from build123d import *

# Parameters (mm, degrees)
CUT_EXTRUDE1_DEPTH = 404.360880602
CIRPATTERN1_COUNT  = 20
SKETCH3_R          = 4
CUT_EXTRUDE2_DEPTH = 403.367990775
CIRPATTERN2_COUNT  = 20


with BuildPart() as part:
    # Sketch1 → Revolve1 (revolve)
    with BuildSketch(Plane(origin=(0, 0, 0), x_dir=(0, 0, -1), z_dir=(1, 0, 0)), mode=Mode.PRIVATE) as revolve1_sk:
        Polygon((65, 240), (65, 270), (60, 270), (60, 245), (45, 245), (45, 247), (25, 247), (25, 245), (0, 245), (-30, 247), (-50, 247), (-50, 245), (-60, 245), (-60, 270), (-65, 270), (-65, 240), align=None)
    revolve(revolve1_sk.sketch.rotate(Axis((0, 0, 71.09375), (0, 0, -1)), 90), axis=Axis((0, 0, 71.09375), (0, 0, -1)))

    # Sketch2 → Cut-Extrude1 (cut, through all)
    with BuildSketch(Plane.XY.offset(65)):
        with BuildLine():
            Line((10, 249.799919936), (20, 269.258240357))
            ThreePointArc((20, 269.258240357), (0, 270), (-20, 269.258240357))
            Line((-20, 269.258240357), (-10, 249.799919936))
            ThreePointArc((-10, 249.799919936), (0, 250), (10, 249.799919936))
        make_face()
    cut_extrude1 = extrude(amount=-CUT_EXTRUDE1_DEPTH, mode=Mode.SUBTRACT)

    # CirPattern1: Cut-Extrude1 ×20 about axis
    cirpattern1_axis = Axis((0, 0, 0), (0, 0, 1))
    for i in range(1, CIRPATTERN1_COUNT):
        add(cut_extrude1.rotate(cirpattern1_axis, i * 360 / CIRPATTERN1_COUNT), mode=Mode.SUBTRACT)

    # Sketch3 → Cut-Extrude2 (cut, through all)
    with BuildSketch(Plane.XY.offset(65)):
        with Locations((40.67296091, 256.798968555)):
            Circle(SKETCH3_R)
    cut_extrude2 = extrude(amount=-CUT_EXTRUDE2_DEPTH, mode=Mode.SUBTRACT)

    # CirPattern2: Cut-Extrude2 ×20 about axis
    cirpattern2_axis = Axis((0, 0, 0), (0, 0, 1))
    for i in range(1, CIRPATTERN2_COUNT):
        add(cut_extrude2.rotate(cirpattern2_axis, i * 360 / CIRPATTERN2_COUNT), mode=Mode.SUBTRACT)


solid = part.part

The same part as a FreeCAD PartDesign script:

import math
import FreeCAD as App
import Part
import Sketcher
from FreeCAD import Vector

doc = App.newDocument("Part")
body = doc.addObject("PartDesign::Body", "Body")

sketch1 = body.newObject("Sketcher::SketchObject", "Sketch")
sketch1.AttachmentSupport = (doc.getObject("YZ_Plane"), [""])
sketch1.MapMode = "FlatFace"
sketch1.addGeometry(Part.LineSegment(Vector(240, -65, 0), Vector(270, -65, 0)), False)
sketch1.addGeometry(Part.LineSegment(Vector(270, -65, 0), Vector(270, -60, 0)), False)
sketch1.addGeometry(Part.LineSegment(Vector(270, -60, 0), Vector(245, -60, 0)), False)
sketch1.addGeometry(Part.LineSegment(Vector(245, -60, 0), Vector(245, -45, 0)), False)
sketch1.addGeometry(Part.LineSegment(Vector(245, -45, 0), Vector(247, -45, 0)), False)
sketch1.addGeometry(Part.LineSegment(Vector(247, -45, 0), Vector(247, -25, 0)), False)
sketch1.addGeometry(Part.LineSegment(Vector(247, -25, 0), Vector(245, -25, 0)), False)
sketch1.addGeometry(Part.LineSegment(Vector(245, -25, 0), Vector(245, 0, 0)), False)
sketch1.addGeometry(Part.LineSegment(Vector(245, 0, 0), Vector(247, 30, 0)), False)
sketch1.addGeometry(Part.LineSegment(Vector(247, 30, 0), Vector(247, 50, 0)), False)
sketch1.addGeometry(Part.LineSegment(Vector(247, 50, 0), Vector(245, 50, 0)), False)
sketch1.addGeometry(Part.LineSegment(Vector(245, 50, 0), Vector(245, 60, 0)), False)
sketch1.addGeometry(Part.LineSegment(Vector(245, 60, 0), Vector(270, 60, 0)), False)
sketch1.addGeometry(Part.LineSegment(Vector(270, 60, 0), Vector(270, 65, 0)), False)
sketch1.addGeometry(Part.LineSegment(Vector(270, 65, 0), Vector(240, 65, 0)), False)
sketch1.addGeometry(Part.LineSegment(Vector(240, 65, 0), Vector(240, -65, 0)), False)
sketch1.addConstraint(Sketcher.Constraint("Coincident", 0, 2, 1, 1))
sketch1.addConstraint(Sketcher.Constraint("Coincident", 1, 2, 2, 1))
sketch1.addConstraint(Sketcher.Constraint("Coincident", 2, 2, 3, 1))
sketch1.addConstraint(Sketcher.Constraint("Coincident", 3, 2, 4, 1))
sketch1.addConstraint(Sketcher.Constraint("Coincident", 4, 2, 5, 1))
sketch1.addConstraint(Sketcher.Constraint("Coincident", 5, 2, 6, 1))
sketch1.addConstraint(Sketcher.Constraint("Coincident", 6, 2, 7, 1))
sketch1.addConstraint(Sketcher.Constraint("Coincident", 7, 2, 8, 1))
sketch1.addConstraint(Sketcher.Constraint("Coincident", 8, 2, 9, 1))
sketch1.addConstraint(Sketcher.Constraint("Coincident", 9, 2, 10, 1))
sketch1.addConstraint(Sketcher.Constraint("Coincident", 10, 2, 11, 1))
sketch1.addConstraint(Sketcher.Constraint("Coincident", 11, 2, 12, 1))
sketch1.addConstraint(Sketcher.Constraint("Coincident", 12, 2, 13, 1))
sketch1.addConstraint(Sketcher.Constraint("Coincident", 13, 2, 14, 1))
sketch1.addConstraint(Sketcher.Constraint("Coincident", 14, 2, 15, 1))
sketch1.addConstraint(Sketcher.Constraint("Coincident", 15, 2, 0, 1))
sketch1.addConstraint(Sketcher.Constraint("Horizontal", 0))
sketch1.addConstraint(Sketcher.Constraint("Vertical", 1))
sketch1.addConstraint(Sketcher.Constraint("Horizontal", 2))
sketch1.addConstraint(Sketcher.Constraint("Vertical", 3))
sketch1.addConstraint(Sketcher.Constraint("Horizontal", 4))
sketch1.addConstraint(Sketcher.Constraint("Vertical", 5))
sketch1.addConstraint(Sketcher.Constraint("Horizontal", 6))
sketch1.addConstraint(Sketcher.Constraint("Vertical", 7))
sketch1.addConstraint(Sketcher.Constraint("Vertical", 9))
sketch1.addConstraint(Sketcher.Constraint("Horizontal", 10))
sketch1.addConstraint(Sketcher.Constraint("Vertical", 11))
sketch1.addConstraint(Sketcher.Constraint("Horizontal", 12))
sketch1.addConstraint(Sketcher.Constraint("Vertical", 13))
sketch1.addConstraint(Sketcher.Constraint("Horizontal", 14))
sketch1.addConstraint(Sketcher.Constraint("Vertical", 15))
sketch1.addConstraint(Sketcher.Constraint("Symmetric", 2, 2, 11, 2, -1))
sketch1.addConstraint(Sketcher.Constraint("Symmetric", 0, 2, 13, 2, -1))
sketch1.addConstraint(Sketcher.Constraint("PointOnObject", 7, 2, -1))
sketch1.addConstraint(Sketcher.Constraint("Vertical", 3, 2, 6, 2))
sketch1.addConstraint(Sketcher.Constraint("Vertical", 5, 2, 8, 2))
sketch1.addConstraint(Sketcher.Constraint("Equal", 12, 7))
sketch1.addConstraint(Sketcher.Constraint("Equal", 5, 9))
sketch1.addConstraint(Sketcher.Constraint("DistanceX", 0, 1, 0, 2, 30.0))
sketch1.addConstraint(Sketcher.Constraint("DistanceX", 2, 2, 2, 1, 25.0))
sketch1.addConstraint(Sketcher.Constraint("DistanceX", 4, 1, 4, 2, 2.0))
sketch1.addConstraint(Sketcher.Constraint("DistanceY", 1, 1, 1, 2, 5.0))
sketch1.addConstraint(Sketcher.Constraint("DistanceY", 3, 1, 3, 2, 15.0))
sketch1.addConstraint(Sketcher.Constraint("DistanceY", 5, 1, 5, 2, 20.0))
sketch1.addConstraint(Sketcher.Constraint("DistanceY", 11, 1, 11, 2, 10.0))
sketch1.addConstraint(Sketcher.Constraint("DistanceX", -1, 1, 0, 2, 270.0))
revolution = body.newObject("PartDesign::Revolution", "Revolution")
revolution.Profile = sketch1
revolution.ReferenceAxis = (sketch1, ["V_Axis"])
revolution.Angle = 360

sketch2 = body.newObject("Sketcher::SketchObject", "Sketch001")
sketch2.AttachmentSupport = (doc.getObject("XY_Plane"), [""])
sketch2.MapMode = "FlatFace"
sketch2.AttachmentOffset = App.Placement(Vector(0, 0, 65), App.Rotation())
sketch2.addGeometry(Part.LineSegment(Vector(10, 250, 0), Vector(20, 269, 0)), False)
sketch2.addGeometry(Part.ArcOfCircle(Part.Circle(Vector(0, 0, 0), Vector(0, 0, 1), 270), math.radians(85.75), math.radians(94.25)), False)
sketch2.addGeometry(Part.LineSegment(Vector(-20, 269, 0), Vector(-10, 250, 0)), False)
sketch2.addGeometry(Part.ArcOfCircle(Part.Circle(Vector(0, 0, 0), Vector(0, 0, 1), 250), math.radians(87.71), math.radians(92.29)), False)
sketch2.addConstraint(Sketcher.Constraint("Coincident", 0, 2, 1, 1))
sketch2.addConstraint(Sketcher.Constraint("Coincident", 1, 2, 2, 1))
sketch2.addConstraint(Sketcher.Constraint("Coincident", 2, 2, 3, 2))
sketch2.addConstraint(Sketcher.Constraint("Coincident", 3, 1, 0, 1))
sketch2.addConstraint(Sketcher.Constraint("Coincident", 1, 3, -1, 1))
sketch2.addConstraint(Sketcher.Constraint("Coincident", 3, 3, -1, 1))
sketch2.addConstraint(Sketcher.Constraint("Horizontal", 0, 2, 1, 2))
sketch2.addConstraint(Sketcher.Constraint("Horizontal", 2, 2, 3, 1))
sketch2.addConstraint(Sketcher.Constraint("Radius", 1, 270.0))
sketch2.addConstraint(Sketcher.Constraint("Radius", 3, 250.0))
sketch2.addConstraint(Sketcher.Constraint("DistanceX", -1, 1, 0, 2, 20.0))
sketch2.addConstraint(Sketcher.Constraint("DistanceX", 2, 2, -1, 1, 10.0))
pocket1 = body.newObject("PartDesign::Pocket", "Pocket")
pocket1.Profile = sketch2
pocket1.Type = "ThroughAll"
doc.recompute()

polarpattern = body.newObject("PartDesign::PolarPattern", "PolarPattern")
polarpattern.Originals = [pocket1]
polarpattern.Axis = (doc.getObject("Z_Axis"), [""])
polarpattern.Angle = 360
polarpattern.Occurrences = 20
body.Tip = polarpattern

sketch3 = body.newObject("Sketcher::SketchObject", "Sketch002")
sketch3.AttachmentSupport = (doc.getObject("XY_Plane"), [""])
sketch3.MapMode = "FlatFace"
sketch3.AttachmentOffset = App.Placement(Vector(0, 0, 65), App.Rotation())
sketch3.addGeometry(Part.Circle(Vector(40.7, 256.8, 0), Vector(0, 0, 1), 4), False)
sketch3.addConstraint(Sketcher.Constraint("Diameter", 0, 8.0))
sketch3.addConstraint(Sketcher.Constraint("DistanceX", -1, 1, 0, 3, 40.672961))
sketch3.addConstraint(Sketcher.Constraint("DistanceY", -1, 1, 0, 3, 256.798969))
pocket2 = body.newObject("PartDesign::Pocket", "Pocket001")
pocket2.Profile = sketch3
pocket2.Type = "ThroughAll"
doc.recompute()

polarpattern2 = body.newObject("PartDesign::PolarPattern", "PolarPattern001")
polarpattern2.Originals = [pocket2]
polarpattern2.Axis = (doc.getObject("Z_Axis"), [""])
polarpattern2.Angle = 360
polarpattern2.Occurrences = 20
body.Tip = polarpattern2

doc.recompute()
